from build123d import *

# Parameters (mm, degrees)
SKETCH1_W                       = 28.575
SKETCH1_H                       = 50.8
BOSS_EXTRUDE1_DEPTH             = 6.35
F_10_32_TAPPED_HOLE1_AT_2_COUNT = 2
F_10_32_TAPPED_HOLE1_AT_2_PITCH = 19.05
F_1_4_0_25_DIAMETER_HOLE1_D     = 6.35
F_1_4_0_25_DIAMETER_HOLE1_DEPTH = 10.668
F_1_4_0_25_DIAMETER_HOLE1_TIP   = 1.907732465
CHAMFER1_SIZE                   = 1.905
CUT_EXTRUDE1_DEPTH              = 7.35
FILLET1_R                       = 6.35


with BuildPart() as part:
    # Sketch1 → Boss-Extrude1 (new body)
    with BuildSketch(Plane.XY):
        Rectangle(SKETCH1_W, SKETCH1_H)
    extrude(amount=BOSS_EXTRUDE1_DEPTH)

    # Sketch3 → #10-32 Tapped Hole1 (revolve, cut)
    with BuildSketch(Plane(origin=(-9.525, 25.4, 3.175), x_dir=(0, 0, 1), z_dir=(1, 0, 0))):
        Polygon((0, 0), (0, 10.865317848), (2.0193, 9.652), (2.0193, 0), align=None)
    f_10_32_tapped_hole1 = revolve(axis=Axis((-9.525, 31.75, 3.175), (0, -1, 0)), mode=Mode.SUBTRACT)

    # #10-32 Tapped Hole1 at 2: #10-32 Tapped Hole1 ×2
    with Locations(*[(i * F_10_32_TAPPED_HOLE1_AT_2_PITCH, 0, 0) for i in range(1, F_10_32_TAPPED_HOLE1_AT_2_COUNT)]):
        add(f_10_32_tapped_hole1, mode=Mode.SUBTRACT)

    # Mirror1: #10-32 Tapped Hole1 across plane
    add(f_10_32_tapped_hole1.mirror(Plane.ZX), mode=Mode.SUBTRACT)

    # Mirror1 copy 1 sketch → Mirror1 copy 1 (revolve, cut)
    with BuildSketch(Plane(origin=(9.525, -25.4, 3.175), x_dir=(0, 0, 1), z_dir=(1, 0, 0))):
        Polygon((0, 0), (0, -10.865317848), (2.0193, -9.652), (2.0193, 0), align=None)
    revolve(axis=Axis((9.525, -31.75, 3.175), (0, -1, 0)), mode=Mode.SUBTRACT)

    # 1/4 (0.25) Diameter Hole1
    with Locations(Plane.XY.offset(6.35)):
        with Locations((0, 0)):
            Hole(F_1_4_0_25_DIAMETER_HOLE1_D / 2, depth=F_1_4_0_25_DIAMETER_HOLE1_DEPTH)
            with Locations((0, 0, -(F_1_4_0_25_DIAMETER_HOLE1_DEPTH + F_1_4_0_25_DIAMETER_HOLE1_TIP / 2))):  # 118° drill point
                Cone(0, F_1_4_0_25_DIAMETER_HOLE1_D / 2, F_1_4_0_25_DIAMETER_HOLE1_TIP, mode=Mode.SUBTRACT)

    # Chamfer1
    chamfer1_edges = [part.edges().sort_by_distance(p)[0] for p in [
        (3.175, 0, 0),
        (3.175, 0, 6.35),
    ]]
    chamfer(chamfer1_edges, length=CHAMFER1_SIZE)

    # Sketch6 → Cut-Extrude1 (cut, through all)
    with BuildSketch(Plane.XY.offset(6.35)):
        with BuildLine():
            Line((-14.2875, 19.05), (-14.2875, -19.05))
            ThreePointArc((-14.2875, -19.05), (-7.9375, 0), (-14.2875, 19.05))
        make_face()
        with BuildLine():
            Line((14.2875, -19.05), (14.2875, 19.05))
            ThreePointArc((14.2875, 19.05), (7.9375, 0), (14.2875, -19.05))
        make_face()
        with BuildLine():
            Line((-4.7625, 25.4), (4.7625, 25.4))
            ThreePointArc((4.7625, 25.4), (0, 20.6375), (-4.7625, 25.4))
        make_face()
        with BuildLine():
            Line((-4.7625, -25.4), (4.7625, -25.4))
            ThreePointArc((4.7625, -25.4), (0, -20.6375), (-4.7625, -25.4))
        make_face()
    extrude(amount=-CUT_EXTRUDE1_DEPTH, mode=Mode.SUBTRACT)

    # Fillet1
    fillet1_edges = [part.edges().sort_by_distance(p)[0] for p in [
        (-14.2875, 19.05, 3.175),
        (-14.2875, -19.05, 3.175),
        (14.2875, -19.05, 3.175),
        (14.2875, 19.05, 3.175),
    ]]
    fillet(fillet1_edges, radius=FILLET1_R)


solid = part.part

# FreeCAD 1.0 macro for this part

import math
import FreeCAD as App
import Part
import Sketcher
from FreeCAD import Vector
Q = App.Units.Quantity


def edges_at(feature, points):
    """Names of the edges that pass closest to the given points."""
    edges = feature.Shape.Edges
    near = lambda p: min(range(len(edges)), key=lambda i: edges[i].distToShape(Part.Vertex(*p))[0])
    return sorted({f"Edge{near(p) + 1}" for p in points})

doc = App.newDocument("Part")
body = doc.addObject("PartDesign::Body", "Body")

# Sketch on XY plane
sketch1 = body.newObject("Sketcher::SketchObject", "Sketch")
sketch1.AttachmentSupport = (doc.getObject("XY_Plane"), [""])
sketch1.MapMode = "FlatFace"
sketch1.addGeometry(Part.LineSegment(Vector(-14.2875, 25.4, 0), Vector(-14.2875, -25.4, 0)), False)
sketch1.addGeometry(Part.LineSegment(Vector(-14.2875, -25.4, 0), Vector(14.2875, -25.4, 0)), False)
sketch1.addGeometry(Part.LineSegment(Vector(14.2875, -25.4, 0), Vector(14.2875, 25.4, 0)), False)
sketch1.addGeometry(Part.LineSegment(Vector(14.2875, 25.4, 0), Vector(-14.2875, 25.4, 0)), False)
sketch1.addConstraint(Sketcher.Constraint("Coincident", 0, 2, 1, 1))
sketch1.addConstraint(Sketcher.Constraint("Coincident", 1, 2, 2, 1))
sketch1.addConstraint(Sketcher.Constraint("Coincident", 2, 2, 3, 1))
sketch1.addConstraint(Sketcher.Constraint("Coincident", 3, 2, 0, 1))
sketch1.addConstraint(Sketcher.Constraint("Vertical", 0))
sketch1.addConstraint(Sketcher.Constraint("Horizontal", 1))
sketch1.addConstraint(Sketcher.Constraint("Vertical", 2))
sketch1.addConstraint(Sketcher.Constraint("Horizontal", 3))
sketch1.addConstraint(Sketcher.Constraint("Symmetric", 0, 2, 2, 2, -1, 1))
sketch1.addConstraint(Sketcher.Constraint("DistanceY", 0, 2, 0, 1, Q("2 in")))
sketch1.addConstraint(Sketcher.Constraint("DistanceX", 1, 1, 1, 2, Q("1.125 in")))
pad1 = body.newObject("PartDesign::Pad", "Pad")
pad1.Profile = sketch1
pad1.Length = Q("0.25 in")

# Sketch on YZ plane
sketch2 = body.newObject("Sketcher::SketchObject", "Sketch001")
sketch2.AttachmentSupport = (doc.getObject("YZ_Plane"), [""])
sketch2.MapMode = "FlatFace"
sketch2.AttachmentOffset = App.Placement(Vector(0, 0, -0.375 * 25.4), App.Rotation())
sketch2.addGeometry(Part.LineSegment(Vector(14.534682, 3.175, 0), Vector(25.4, 3.175, 0)), False)
sketch2.addGeometry(Part.LineSegment(Vector(25.4, 3.175, 0), Vector(25.4, 5.1943, 0)), False)
sketch2.addGeometry(Part.LineSegment(Vector(25.4, 5.1943, 0), Vector(15.748, 5.1943, 0)), False)
sketch2.addGeometry(Part.LineSegment(Vector(15.748, 5.1943, 0), Vector(14.534682, 3.175, 0)), False)
sketch2.addGeometry(Part.LineSegment(Vector(25.4, 3.175, 0), Vector(14.534682, 3.175, 0)), True)  # axis
sketch2.addConstraint(Sketcher.Constraint("Coincident", 0, 2, 1, 1))
sketch2.addConstraint(Sketcher.Constraint("Coincident", 1, 2, 2, 1))
sketch2.addConstraint(Sketcher.Constraint("Coincident", 2, 2, 3, 1))
sketch2.addConstraint(Sketcher.Constraint("Coincident", 3, 2, 0, 1))
sketch2.addConstraint(Sketcher.Constraint("Horizontal", 0))
sketch2.addConstraint(Sketcher.Constraint("Vertical", 1))
sketch2.addConstraint(Sketcher.Constraint("Horizontal", 2))
sketch2.addConstraint(Sketcher.Constraint("Horizontal", 4))
sketch2.addConstraint(Sketcher.Constraint("Coincident", 4, 1, 0, 2))
sketch2.addConstraint(Sketcher.Constraint("Equal", 0, 4))
sketch2.addConstraint(Sketcher.Constraint("DistanceX", -1, 1, 0, 2, Q("1 in")))
sketch2.addConstraint(Sketcher.Constraint("Angle", 3, Q("-121 deg")))
sketch2.addConstraint(Sketcher.Constraint("DistanceX", 2, 2, 2, 1, Q("0.38 in")))
sketch2.addConstraint(Sketcher.Constraint("DistanceY", 1, 1, 1, 2, Q("0.0795 in")))
sketch2.addConstraint(Sketcher.Constraint("DistanceY", -1, 1, 0, 2, Q("0.125 in")))
groove = body.newObject("PartDesign::Groove", "Groove")
groove.Profile = sketch2
groove.ReferenceAxis = (sketch2, ["Axis0"])
groove.Angle = 360
doc.recompute()

linearpattern = body.newObject("PartDesign::LinearPattern", "LinearPattern")
linearpattern.Originals = [groove]
linearpattern.Direction = (doc.getObject("X_Axis"), [""])
linearpattern.Mode = "offset"
linearpattern.Offset = Q("0.75 in")
linearpattern.Occurrences = 2
body.Tip = linearpattern
doc.recompute()

mirrored = body.newObject("PartDesign::Mirrored", "Mirrored")
mirrored.Originals = [groove]
mirrored.MirrorPlane = (doc.getObject("XZ_Plane"), [""])
body.Tip = mirrored

# Sketch on YZ plane
sketch3 = body.newObject("Sketcher::SketchObject", "Sketch002")
sketch3.AttachmentSupport = (doc.getObject("YZ_Plane"), [""])
sketch3.MapMode = "FlatFace"
sketch3.AttachmentOffset = App.Placement(Vector(0, 0, 0.375 * 25.4), App.Rotation())
sketch3.addGeometry(Part.LineSegment(Vector(-25.4, 3.175, 0), Vector(-14.534682, 3.175, 0)), False)
sketch3.addGeometry(Part.LineSegment(Vector(-14.534682, 3.175, 0), Vector(-15.748, 5.1943, 0)), False)
sketch3.addGeometry(Part.LineSegment(Vector(-15.748, 5.1943, 0), Vector(-25.4, 5.1943, 0)), False)
sketch3.addGeometry(Part.LineSegment(Vector(-25.4, 5.1943, 0), Vector(-25.4, 3.175, 0)), False)
sketch3.addGeometry(Part.LineSegment(Vector(-14.534682, 3.175, 0), Vector(-25.4, 3.175, 0)), True)  # axis
sketch3.addConstraint(Sketcher.Constraint("Coincident", 0, 2, 1, 1))
sketch3.addConstraint(Sketcher.Constraint("Coincident", 1, 2, 2, 1))
sketch3.addConstraint(Sketcher.Constraint("Coincident", 2, 2, 3, 1))
sketch3.addConstraint(Sketcher.Constraint("Coincident", 3, 2, 0, 1))
sketch3.addConstraint(Sketcher.Constraint("Horizontal", 0))
sketch3.addConstraint(Sketcher.Constraint("Horizontal", 2))
sketch3.addConstraint(Sketcher.Constraint("Vertical", 3))
sketch3.addConstraint(Sketcher.Constraint("Horizontal", 4))
sketch3.addConstraint(Sketcher.Constraint("Coincident", 4, 1, 0, 2))
sketch3.addConstraint(Sketcher.Constraint("Vertical", 2, 2, 4, 2))
sketch3.addConstraint(Sketcher.Constraint("DistanceX", 2, 2, -1, 1, Q("1 in")))
sketch3.addConstraint(Sketcher.Constraint("Angle", 1, Q("121 deg")))
sketch3.addConstraint(Sketcher.Constraint("DistanceX", 2, 2, 2, 1, Q("0.38 in")))
sketch3.addConstraint(Sketcher.Constraint("DistanceY", 3, 2, 3, 1, Q("0.0795 in")))
sketch3.addConstraint(Sketcher.Constraint("DistanceY", -1, 1, 0, 2, Q("0.125 in")))
groove2 = body.newObject("PartDesign::Groove", "Groove001")
groove2.Profile = sketch3
groove2.ReferenceAxis = (sketch3, ["Axis0"])
groove2.Angle = 360

# Sketch on XY plane
sketch4 = body.newObject("Sketcher::SketchObject", "Sketch003")
sketch4.AttachmentSupport = (doc.getObject("XY_Plane"), [""])
sketch4.MapMode = "FlatFace"
sketch4.AttachmentOffset = App.Placement(Vector(0, 0, 0.25 * 25.4), App.Rotation())
sketch4.addGeometry(Part.Circle(Vector(0, 0, 0), Vector(0, 0, 1), 3.175), False)
sketch4.addConstraint(Sketcher.Constraint("Coincident", 0, 3, -1, 1))
sketch4.addConstraint(Sketcher.Constraint("Diameter", 0, Q("0.25 in")))
doc.recompute()
hole = body.newObject("PartDesign::Hole", "Hole")
hole.Profile = sketch4
hole.ThreadType = "None"
hole.Diameter = Q("0.25 in")
hole.DepthType = "Dimension"
hole.Depth = Q("0.42 in")
hole.DrillPoint = "Angled"
hole.DrillPointAngle = 118
doc.recompute()

chamfer = body.newObject("PartDesign::Chamfer", "Chamfer")
chamfer.Base = (hole, edges_at(hole, [(3.175, 0, 0), (3.175, 0, 6.35)]))
chamfer.Size = Q("0.075 in")

# Sketch on XY plane
sketch5 = body.newObject("Sketcher::SketchObject", "Sketch004")
sketch5.AttachmentSupport = (doc.getObject("XY_Plane"), [""])
sketch5.MapMode = "FlatFace"
sketch5.AttachmentOffset = App.Placement(Vector(0, 0, 0.25 * 25.4), App.Rotation())
sketch5.addGeometry(Part.LineSegment(Vector(-14.2875, 19.05, 0), Vector(-14.2875, -19.05, 0)), False)
sketch5.addGeometry(Part.ArcOfCircle(Part.Circle(Vector(-39.6875, 0, 0), Vector(0, 0, 1), 31.75), math.radians(-36.869898), math.radians(36.869898)), False)
sketch5.addGeometry(Part.LineSegment(Vector(14.2875, -19.05, 0), Vector(14.2875, 19.05, 0)), False)
sketch5.addGeometry(Part.ArcOfCircle(Part.Circle(Vector(39.6875, 0, 0), Vector(0, 0, 1), 31.75), math.radians(143.130102), math.radians(216.869898)), False)
sketch5.addGeometry(Part.LineSegment(Vector(4.7625, 25.4, 0), Vector(-4.7625, 25.4, 0)), False)
sketch5.addGeometry(Part.ArcOfCircle(Part.Circle(Vector(0, 25.4, 0), Vector(0, 0, 1), 4.7625), math.radians(180), math.radians(360)), False)
sketch5.addGeometry(Part.LineSegment(Vector(-4.7625, -25.4, 0), Vector(4.7625, -25.4, 0)), False)
sketch5.addGeometry(Part.ArcOfCircle(Part.Circle(Vector(0, -25.4, 0), Vector(0, 0, 1), 4.7625), math.radians(0), math.radians(180)), False)
sketch5.addConstraint(Sketcher.Constraint("Coincident", 0, 1, 1, 2))
sketch5.addConstraint(Sketcher.Constraint("Coincident", 1, 1, 0, 2))
sketch5.addConstraint(Sketcher.Constraint("Coincident", 2, 1, 3, 2))
sketch5.addConstraint(Sketcher.Constraint("Coincident", 3, 1, 2, 2))
sketch5.addConstraint(Sketcher.Constraint("Coincident", 4, 1, 5, 2))
sketch5.addConstraint(Sketcher.Constraint("Coincident", 5, 1, 4, 2))
sketch5.addConstraint(Sketcher.Constraint("Coincident", 6, 1, 7, 2))
sketch5.addConstraint(Sketcher.Constraint("Coincident", 7, 1, 6, 2))
sketch5.addConstraint(Sketcher.Constraint("Vertical", 0))
sketch5.addConstraint(Sketcher.Constraint("Vertical", 2))
sketch5.addConstraint(Sketcher.Constraint("Horizontal", 4))
sketch5.addConstraint(Sketcher.Constraint("Horizontal", 6))
sketch5.addConstraint(Sketcher.Constraint("Equal", 1, 3))
sketch5.addConstraint(Sketcher.Constraint("Equal", 5, 7))
sketch5.addConstraint(Sketcher.Constraint("Symmetric", 1, 3, 3, 3, -1, 1))
sketch5.addConstraint(Sketcher.Constraint("Symmetric", 5, 3, 7, 3, -1, 1))
sketch5.addConstraint(Sketcher.Constraint("Symmetric", 1, 1, 2, 1, -2))
sketch5.addConstraint(Sketcher.Constraint("Symmetric", 5, 1, 6, 1, -1))
sketch5.addConstraint(Sketcher.Constraint("Horizontal", 5, 3, 4, 1))
sketch5.addConstraint(Sketcher.Constraint("Radius", 1, Q("1.25 in")))
sketch5.addConstraint(Sketcher.Constraint("DistanceY", 0, 2, 0, 1, Q("1.5 in")))
sketch5.addConstraint(Sketcher.Constraint("DistanceY", -1, 1, 5, 3, Q("1 in")))
sketch5.addConstraint(Sketcher.Constraint("Radius", 5, Q("0.1875 in")))
sketch5.addConstraint(Sketcher.Constraint("DistanceX", 0, 1, 4, 1, Q("0.75 in")))
pocket1 = body.newObject("PartDesign::Pocket", "Pocket")
pocket1.Profile = sketch5
pocket1.Type = "ThroughAll"
doc.recompute()

fillet = body.newObject("PartDesign::Fillet", "Fillet")
fillet.Base = (pocket1, edges_at(pocket1, [
    (-14.287, 19.05, 3.175),
    (-14.287, -19.05, 3.175),
    (14.287, -19.05, 3.175),
    (14.287, 19.05, 3.175),
]))
fillet.Radius = Q("0.25 in")

doc.recompute()
